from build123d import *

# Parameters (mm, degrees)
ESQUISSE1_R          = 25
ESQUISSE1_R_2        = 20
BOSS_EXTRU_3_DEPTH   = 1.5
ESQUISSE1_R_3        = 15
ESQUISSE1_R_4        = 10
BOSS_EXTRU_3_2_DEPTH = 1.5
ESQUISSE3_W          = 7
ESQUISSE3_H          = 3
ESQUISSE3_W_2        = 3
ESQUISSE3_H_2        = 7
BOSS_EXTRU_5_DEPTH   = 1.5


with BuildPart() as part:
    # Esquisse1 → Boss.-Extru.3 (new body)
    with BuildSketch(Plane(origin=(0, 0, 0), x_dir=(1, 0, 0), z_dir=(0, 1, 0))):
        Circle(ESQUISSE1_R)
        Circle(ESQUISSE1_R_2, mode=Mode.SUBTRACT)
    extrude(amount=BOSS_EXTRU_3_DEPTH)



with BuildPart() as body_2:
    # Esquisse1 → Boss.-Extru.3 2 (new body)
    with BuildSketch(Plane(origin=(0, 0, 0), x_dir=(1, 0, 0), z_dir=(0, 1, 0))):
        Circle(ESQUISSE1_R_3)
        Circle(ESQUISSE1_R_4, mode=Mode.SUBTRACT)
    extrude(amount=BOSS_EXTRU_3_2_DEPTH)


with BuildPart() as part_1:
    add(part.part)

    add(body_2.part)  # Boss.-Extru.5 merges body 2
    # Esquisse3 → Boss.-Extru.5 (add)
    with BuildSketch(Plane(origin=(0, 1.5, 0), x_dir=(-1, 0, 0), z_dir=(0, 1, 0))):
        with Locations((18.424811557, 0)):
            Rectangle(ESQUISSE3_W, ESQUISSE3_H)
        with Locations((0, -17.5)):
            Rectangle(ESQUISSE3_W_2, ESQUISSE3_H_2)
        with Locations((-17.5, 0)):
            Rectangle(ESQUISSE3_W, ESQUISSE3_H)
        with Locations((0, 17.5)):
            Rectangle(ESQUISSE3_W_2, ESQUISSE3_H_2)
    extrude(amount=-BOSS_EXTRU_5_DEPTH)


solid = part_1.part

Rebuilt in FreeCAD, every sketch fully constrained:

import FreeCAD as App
import Part
import Sketcher
Q = App.Units.Quantity

doc = App.newDocument("Part")
body = doc.addObject("PartDesign::Body", "Body")

# Sketch on XZ plane
sketch1 = body.newObject("Sketcher::SketchObject", "Sketch")
sketch1.AttachmentSupport = (doc.getObject("XZ_Plane"), [""])
sketch1.MapMode = "FlatFace"
sketch1.addGeometry(Part.Circle(App.Vector(0, 0, 0), App.Vector(0, 0, 1), 25), False)
sketch1.addGeometry(Part.Circle(App.Vector(0, 0, 0), App.Vector(0, 0, 1), 20), False)
sketch1.addConstraint(Sketcher.Constraint("Coincident", 0, 3, -1, 1))
sketch1.addConstraint(Sketcher.Constraint("Coincident", 1, 3, -1, 1))
sketch1.addConstraint(Sketcher.Constraint("Diameter", 0, Q("50 mm")))
sketch1.addConstraint(Sketcher.Constraint("Diameter", 1, Q("40 mm")))
pad1 = body.newObject("PartDesign::Pad", "Pad")
pad1.Profile = sketch1
pad1.Length = 1.5
pad1.Reversed = True
body2 = doc.addObject("PartDesign::Body", "Body001")

# Sketch on XZ plane
sketch2 = body2.newObject("Sketcher::SketchObject", "Sketch001")
sketch2.AttachmentSupport = (doc.getObject("XZ_Plane001"), [""])
sketch2.MapMode = "FlatFace"
sketch2.addGeometry(Part.Circle(App.Vector(0, 0, 0), App.Vector(0, 0, 1), 15), False)
sketch2.addGeometry(Part.Circle(App.Vector(0, 0, 0), App.Vector(0, 0, 1), 10), False)
sketch2.addConstraint(Sketcher.Constraint("Coincident", 0, 3, -1, 1))
sketch2.addConstraint(Sketcher.Constraint("Coincident", 1, 3, -1, 1))
sketch2.addConstraint(Sketcher.Constraint("Diameter", 0, Q("30 mm")))
sketch2.addConstraint(Sketcher.Constraint("Diameter", 1, Q("20 mm")))
pad2 = body2.newObject("PartDesign::Pad", "Pad001")
pad2.Profile = sketch2
pad2.Length = 1.5
pad2.Reversed = True
body.AllowCompound = True
doc.recompute()

boolean = body.newObject("PartDesign::Boolean", "Boolean")
boolean.Type = "Fuse"
boolean.addObjects([body2])

# Sketch on XZ plane
sketch3 = body.newObject("Sketcher::SketchObject", "Sketch002")
sketch3.AttachmentSupport = (doc.getObject("XZ_Plane"), [""])
sketch3.MapMode = "FlatFace"
sketch3.AttachmentOffset = App.Placement(App.Vector(0, 0, -1.5), App.Rotation())
sketch3.addGeometry(Part.LineSegment(App.Vector(-14.9, 1.5, 0), App.Vector(-14.9, -1.5, 0)), False)
sketch3.addGeometry(Part.LineSegment(App.Vector(-14.9, -1.5, 0), App.Vector(-21.9, -1.5, 0)), False)
sketch3.addGeometry(Part.LineSegment(App.Vector(-21.9, -1.5, 0), App.Vector(-21.9, 1.5, 0)), False)
sketch3.addGeometry(Part.LineSegment(App.Vector(-21.9, 1.5, 0), App.Vector(-14.9, 1.5, 0)), False)
sketch3.addGeometry(Part.LineSegment(App.Vector(1.5, -14, 0), App.Vector(1.5, -21, 0)), False)
sketch3.addGeometry(Part.LineSegment(App.Vector(1.5, -21, 0), App.Vector(-1.5, -21, 0)), False)
sketch3.addGeometry(Part.LineSegment(App.Vector(-1.5, -21, 0), App.Vector(-1.5, -14, 0)), False)
sketch3.addGeometry(Part.LineSegment(App.Vector(-1.5, -14, 0), App.Vector(1.5, -14, 0)), False)
sketch3.addGeometry(Part.LineSegment(App.Vector(21, 1.5, 0), App.Vector(21, -1.5, 0)), False)
sketch3.addGeometry(Part.LineSegment(App.Vector(21, -1.5, 0), App.Vector(14, -1.5, 0)), False)
sketch3.addGeometry(Part.LineSegment(App.Vector(14, -1.5, 0), App.Vector(14, 1.5, 0)), False)
sketch3.addGeometry(Part.LineSegment(App.Vector(14, 1.5, 0), App.Vector(21, 1.5, 0)), False)
sketch3.addGeometry(Part.LineSegment(App.Vector(1.5, 21, 0), App.Vector(1.5, 14, 0)), False)
sketch3.addGeometry(Part.LineSegment(App.Vector(1.5, 14, 0), App.Vector(-1.5, 14, 0)), False)
sketch3.addGeometry(Part.LineSegment(App.Vector(-1.5, 14, 0), App.Vector(-1.5, 21, 0)), False)
sketch3.addGeometry(Part.LineSegment(App.Vector(-1.5, 21, 0), App.Vector(1.5, 21, 0)), False)
sketch3.addConstraint(Sketcher.Constraint("Coincident", 0, 2, 1, 1))
sketch3.addConstraint(Sketcher.Constraint("Coincident", 1, 2, 2, 1))
sketch3.addConstraint(Sketcher.Constraint("Coincident", 2, 2, 3, 1))
sketch3.addConstraint(Sketcher.Constraint("Coincident", 3, 2, 0, 1))
sketch3.addConstraint(Sketcher.Constraint("Coincident", 4, 2, 5, 1))
sketch3.addConstraint(Sketcher.Constraint("Coincident", 5, 2, 6, 1))
sketch3.addConstraint(Sketcher.Constraint("Coincident", 6, 2, 7, 1))
sketch3.addConstraint(Sketcher.Constraint("Coincident", 7, 2, 4, 1))
sketch3.addConstraint(Sketcher.Constraint("Coincident", 8, 2, 9, 1))
sketch3.addConstraint(Sketcher.Constraint("Coincident", 9, 2, 10, 1))
sketch3.addConstraint(Sketcher.Constraint("Coincident", 10, 2, 11, 1))
sketch3.addConstraint(Sketcher.Constraint("Coincident", 11, 2, 8, 1))
sketch3.addConstraint(Sketcher.Constraint("Coincident", 12, 2, 13, 1))
sketch3.addConstraint(Sketcher.Constraint("Coincident", 13, 2, 14, 1))
sketch3.addConstraint(Sketcher.Constraint("Coincident", 14, 2, 15, 1))
sketch3.addConstraint(Sketcher.Constraint("Coincident", 15, 2, 12, 1))
sketch3.addConstraint(Sketcher.Constraint("Vertical", 0))
sketch3.addConstraint(Sketcher.Constraint("Horizontal", 1))
sketch3.addConstraint(Sketcher.Constraint("Vertical", 2))
sketch3.addConstraint(Sketcher.Constraint("Horizontal", 3))
sketch3.addConstraint(Sketcher.Constraint("Vertical", 4))
sketch3.addConstraint(Sketcher.Constraint("Horizontal", 5))
sketch3.addConstraint(Sketcher.Constraint("Vertical", 6))
sketch3.addConstraint(Sketcher.Constraint("Horizontal", 7))
sketch3.addConstraint(Sketcher.Constraint("Vertical", 8))
sketch3.addConstraint(Sketcher.Constraint("Horizontal", 9))
sketch3.addConstraint(Sketcher.Constraint("Vertical", 10))
sketch3.addConstraint(Sketcher.Constraint("Horizontal", 11))
sketch3.addConstraint(Sketcher.Constraint("Vertical", 12))
sketch3.addConstraint(Sketcher.Constraint("Horizontal", 13))
sketch3.addConstraint(Sketcher.Constraint("Vertical", 14))
sketch3.addConstraint(Sketcher.Constraint("Horizontal", 15))
sketch3.addConstraint(Sketcher.Constraint("Symmetric", 6, 2, 12, 2, -1, 1))
sketch3.addConstraint(Sketcher.Constraint("Symmetric", 4, 2, 14, 2, -1, 1))
sketch3.addConstraint(Sketcher.Constraint("Horizontal", 1, 2, 8, 2))
sketch3.addConstraint(Sketcher.Constraint("Horizontal", 3, 2, 10, 2))
sketch3.addConstraint(Sketcher.Constraint("Vertical", 7, 2, 12, 2))
sketch3.addConstraint(Sketcher.Constraint("Equal", 3, 9))
sketch3.addConstraint(Sketcher.Constraint("Equal", 15, 0))
sketch3.addConstraint(Sketcher.Constraint("Equal", 11, 4))
sketch3.addConstraint(Sketcher.Constraint("DistanceX", 1, 2, 1, 1, Q("7 mm")))
sketch3.addConstraint(Sketcher.Constraint("DistanceX", 5, 2, 5, 1, Q("3 mm")))
sketch3.addConstraint(Sketcher.Constraint("DistanceY", 4, 2, -1, 1, Q("21 mm")))
sketch3.addConstraint(Sketcher.Constraint("DistanceX", -1, 1, 8, 2, Q("21 mm")))
sketch3.addConstraint(Sketcher.Constraint("DistanceY", 0, 2, -1, 1, Q("1.5 mm")))
sketch3.addConstraint(Sketcher.Constraint("DistanceX", 0, 2, -1, 1, Q("14.924812 mm")))
pad3 = body.newObject("PartDesign::Pad", "Pad002")
pad3.Profile = sketch3
pad3.Length = 1.5

doc.recompute()
